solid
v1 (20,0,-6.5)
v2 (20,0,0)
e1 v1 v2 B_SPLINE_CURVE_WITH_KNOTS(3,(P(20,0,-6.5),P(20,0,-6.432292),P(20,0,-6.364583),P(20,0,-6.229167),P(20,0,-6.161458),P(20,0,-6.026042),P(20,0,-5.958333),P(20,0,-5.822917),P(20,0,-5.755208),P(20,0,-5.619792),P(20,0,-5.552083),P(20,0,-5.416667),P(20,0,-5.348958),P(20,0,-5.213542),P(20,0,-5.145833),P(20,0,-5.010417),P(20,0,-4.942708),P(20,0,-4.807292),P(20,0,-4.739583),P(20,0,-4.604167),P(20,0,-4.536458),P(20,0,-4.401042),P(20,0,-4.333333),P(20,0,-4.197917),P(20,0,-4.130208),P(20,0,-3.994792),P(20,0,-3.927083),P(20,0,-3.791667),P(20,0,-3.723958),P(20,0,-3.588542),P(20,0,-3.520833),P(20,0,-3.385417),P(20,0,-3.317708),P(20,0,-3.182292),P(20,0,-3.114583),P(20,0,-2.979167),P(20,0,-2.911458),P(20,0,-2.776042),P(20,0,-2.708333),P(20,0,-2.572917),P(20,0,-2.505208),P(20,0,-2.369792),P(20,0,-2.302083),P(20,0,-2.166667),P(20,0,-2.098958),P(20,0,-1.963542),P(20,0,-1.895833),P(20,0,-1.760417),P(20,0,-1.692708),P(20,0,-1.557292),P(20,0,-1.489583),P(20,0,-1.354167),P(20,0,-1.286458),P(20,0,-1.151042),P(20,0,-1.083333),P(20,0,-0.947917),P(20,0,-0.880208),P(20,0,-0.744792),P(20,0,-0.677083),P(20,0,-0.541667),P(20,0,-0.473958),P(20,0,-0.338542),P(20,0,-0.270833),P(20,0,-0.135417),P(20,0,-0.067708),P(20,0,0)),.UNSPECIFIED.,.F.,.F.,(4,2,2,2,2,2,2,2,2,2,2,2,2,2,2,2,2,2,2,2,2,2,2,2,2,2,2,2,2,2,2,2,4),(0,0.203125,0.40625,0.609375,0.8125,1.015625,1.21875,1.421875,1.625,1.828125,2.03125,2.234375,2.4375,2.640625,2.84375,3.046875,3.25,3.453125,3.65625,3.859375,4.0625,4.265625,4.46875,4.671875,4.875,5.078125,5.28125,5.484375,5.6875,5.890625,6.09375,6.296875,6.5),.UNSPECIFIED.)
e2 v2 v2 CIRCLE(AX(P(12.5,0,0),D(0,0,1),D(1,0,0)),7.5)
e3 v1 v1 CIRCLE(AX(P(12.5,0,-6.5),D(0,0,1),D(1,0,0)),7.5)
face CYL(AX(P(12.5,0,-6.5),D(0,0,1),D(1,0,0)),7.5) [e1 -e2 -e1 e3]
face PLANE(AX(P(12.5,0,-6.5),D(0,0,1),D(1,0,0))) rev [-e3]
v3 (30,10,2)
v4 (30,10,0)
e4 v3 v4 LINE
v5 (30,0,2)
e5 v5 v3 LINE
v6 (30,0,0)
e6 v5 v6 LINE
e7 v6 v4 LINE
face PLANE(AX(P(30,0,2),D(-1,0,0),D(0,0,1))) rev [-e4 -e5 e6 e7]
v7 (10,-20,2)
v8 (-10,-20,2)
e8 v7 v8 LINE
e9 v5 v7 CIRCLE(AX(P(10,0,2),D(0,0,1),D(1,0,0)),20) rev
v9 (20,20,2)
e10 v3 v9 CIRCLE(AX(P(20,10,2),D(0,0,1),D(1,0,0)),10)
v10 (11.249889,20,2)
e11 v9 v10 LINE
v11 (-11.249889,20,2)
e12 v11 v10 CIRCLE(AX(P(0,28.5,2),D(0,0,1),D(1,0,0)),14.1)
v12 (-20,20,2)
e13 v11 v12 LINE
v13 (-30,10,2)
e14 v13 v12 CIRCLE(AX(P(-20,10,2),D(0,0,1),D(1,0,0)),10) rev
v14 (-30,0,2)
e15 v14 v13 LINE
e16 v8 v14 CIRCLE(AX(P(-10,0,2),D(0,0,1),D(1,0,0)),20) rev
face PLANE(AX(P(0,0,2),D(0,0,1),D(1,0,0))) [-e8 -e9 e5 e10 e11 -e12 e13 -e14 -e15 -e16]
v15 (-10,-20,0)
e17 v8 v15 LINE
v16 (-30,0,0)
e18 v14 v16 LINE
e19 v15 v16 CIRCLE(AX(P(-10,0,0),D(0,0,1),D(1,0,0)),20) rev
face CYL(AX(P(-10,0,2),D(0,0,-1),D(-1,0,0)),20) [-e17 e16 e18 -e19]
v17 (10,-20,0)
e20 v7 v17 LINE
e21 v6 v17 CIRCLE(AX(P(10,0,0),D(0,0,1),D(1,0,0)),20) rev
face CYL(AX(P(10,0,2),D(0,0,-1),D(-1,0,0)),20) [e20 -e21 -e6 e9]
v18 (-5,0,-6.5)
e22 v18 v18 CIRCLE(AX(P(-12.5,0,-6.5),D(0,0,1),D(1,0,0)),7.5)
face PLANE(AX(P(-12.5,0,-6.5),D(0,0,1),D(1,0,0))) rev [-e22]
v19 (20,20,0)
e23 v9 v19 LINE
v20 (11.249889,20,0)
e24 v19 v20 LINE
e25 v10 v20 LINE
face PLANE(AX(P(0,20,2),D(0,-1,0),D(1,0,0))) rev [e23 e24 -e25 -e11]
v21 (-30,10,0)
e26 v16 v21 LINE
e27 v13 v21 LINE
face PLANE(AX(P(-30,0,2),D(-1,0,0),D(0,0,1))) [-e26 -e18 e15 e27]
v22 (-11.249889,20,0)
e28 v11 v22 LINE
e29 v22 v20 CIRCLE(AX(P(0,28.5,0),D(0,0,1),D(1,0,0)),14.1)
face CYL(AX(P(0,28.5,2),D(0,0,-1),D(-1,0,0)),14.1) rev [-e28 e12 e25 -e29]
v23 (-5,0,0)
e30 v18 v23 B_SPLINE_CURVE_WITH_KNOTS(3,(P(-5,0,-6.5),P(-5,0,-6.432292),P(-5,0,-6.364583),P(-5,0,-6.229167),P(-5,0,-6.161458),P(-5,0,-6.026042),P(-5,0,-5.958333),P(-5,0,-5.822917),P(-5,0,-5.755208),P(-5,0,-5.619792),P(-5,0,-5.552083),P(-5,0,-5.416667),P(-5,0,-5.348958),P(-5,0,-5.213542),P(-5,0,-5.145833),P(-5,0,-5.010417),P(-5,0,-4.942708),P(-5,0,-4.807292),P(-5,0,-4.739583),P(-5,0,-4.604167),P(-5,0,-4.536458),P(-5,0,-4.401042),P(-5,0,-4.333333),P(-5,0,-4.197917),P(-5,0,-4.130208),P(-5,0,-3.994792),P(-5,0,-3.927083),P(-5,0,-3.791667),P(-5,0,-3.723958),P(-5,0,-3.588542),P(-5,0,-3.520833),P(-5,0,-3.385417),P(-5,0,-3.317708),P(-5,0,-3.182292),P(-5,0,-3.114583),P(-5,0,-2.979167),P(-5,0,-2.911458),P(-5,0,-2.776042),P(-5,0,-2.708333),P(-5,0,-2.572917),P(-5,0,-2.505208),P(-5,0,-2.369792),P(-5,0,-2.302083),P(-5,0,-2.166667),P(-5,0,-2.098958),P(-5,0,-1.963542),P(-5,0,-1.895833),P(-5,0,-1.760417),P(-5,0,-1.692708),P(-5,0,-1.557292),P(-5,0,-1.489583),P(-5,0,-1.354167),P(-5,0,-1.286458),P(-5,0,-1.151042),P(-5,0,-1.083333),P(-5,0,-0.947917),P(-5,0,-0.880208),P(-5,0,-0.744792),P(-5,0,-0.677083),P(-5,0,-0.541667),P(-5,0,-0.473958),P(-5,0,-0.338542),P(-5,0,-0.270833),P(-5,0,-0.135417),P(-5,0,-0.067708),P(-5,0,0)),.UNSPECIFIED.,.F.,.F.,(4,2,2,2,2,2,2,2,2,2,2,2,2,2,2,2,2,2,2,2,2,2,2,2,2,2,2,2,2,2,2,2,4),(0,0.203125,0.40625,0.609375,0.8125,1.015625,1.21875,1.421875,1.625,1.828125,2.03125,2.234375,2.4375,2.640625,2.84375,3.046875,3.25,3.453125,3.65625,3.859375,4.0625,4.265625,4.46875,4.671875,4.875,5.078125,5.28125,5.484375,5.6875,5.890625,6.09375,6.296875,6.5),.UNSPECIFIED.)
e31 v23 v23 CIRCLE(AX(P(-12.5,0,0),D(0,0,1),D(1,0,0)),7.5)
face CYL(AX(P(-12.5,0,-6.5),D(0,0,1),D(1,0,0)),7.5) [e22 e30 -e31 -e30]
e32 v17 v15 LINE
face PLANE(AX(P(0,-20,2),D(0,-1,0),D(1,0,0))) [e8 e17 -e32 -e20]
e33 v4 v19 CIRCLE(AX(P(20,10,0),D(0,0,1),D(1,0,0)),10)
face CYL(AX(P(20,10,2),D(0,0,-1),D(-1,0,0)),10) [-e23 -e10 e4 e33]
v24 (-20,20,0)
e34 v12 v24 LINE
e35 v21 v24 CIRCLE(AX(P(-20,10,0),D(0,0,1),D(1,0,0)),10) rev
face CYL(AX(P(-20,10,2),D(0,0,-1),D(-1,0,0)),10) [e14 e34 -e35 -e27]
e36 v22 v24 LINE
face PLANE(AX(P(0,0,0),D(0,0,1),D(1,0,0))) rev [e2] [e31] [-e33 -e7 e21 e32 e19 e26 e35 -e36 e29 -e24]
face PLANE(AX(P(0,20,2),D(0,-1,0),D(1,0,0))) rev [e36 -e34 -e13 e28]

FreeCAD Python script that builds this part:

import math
import FreeCAD as App
import Part
import Sketcher
from FreeCAD import Vector
Q = App.Units.Quantity

doc = App.newDocument("Part")
body = doc.addObject("PartDesign::Body", "Body")

# Sketch on XY plane
sketch1 = body.newObject("Sketcher::SketchObject", "Sketch")
sketch1.AttachmentSupport = (doc.getObject("XY_Plane"), [""])
sketch1.MapMode = "FlatFace"
sketch1.addGeometry([
    Part.LineSegment(Vector(-10, -20, 0), Vector(10, -20, 0)),  # 0
    Part.ArcOfCircle(Part.Circle(Vector(10, 0, 0), Vector(0, 0, 1), 20), math.radians(-90), math.radians(0)),  # 1
    Part.LineSegment(Vector(30, 0, 0), Vector(30, 10, 0)),  # 2
    Part.ArcOfCircle(Part.Circle(Vector(20, 10, 0), Vector(0, 0, 1), 10), math.radians(0), math.radians(90)),  # 3
    Part.LineSegment(Vector(20, 20, 0), Vector(11, 20, 0)),  # 4
    Part.ArcOfCircle(Part.Circle(Vector(0, 28, 0), Vector(0, 0, 1), 14), math.radians(-143), math.radians(-37)),  # 5
    Part.LineSegment(Vector(-11, 20, 0), Vector(-20, 20, 0)),  # 6
    Part.ArcOfCircle(Part.Circle(Vector(-20, 10, 0), Vector(0, 0, 1), 10), math.radians(90), math.radians(180)),  # 7
    Part.LineSegment(Vector(-30, 10, 0), Vector(-30, 0, 0)),  # 8
    Part.ArcOfCircle(Part.Circle(Vector(-10, 0, 0), Vector(0, 0, 1), 20), math.radians(180), math.radians(270)),  # 9
], False)
sketch1.addConstraint([
    Sketcher.Constraint("Tangent", 0, 2, 1, 1),
    Sketcher.Constraint("Tangent", 1, 2, 2, 1),
    Sketcher.Constraint("Tangent", 2, 2, 3, 1),
    Sketcher.Constraint("Tangent", 3, 2, 4, 1),
    Sketcher.Constraint("Coincident", 4, 2, 5, 2),
    Sketcher.Constraint("Coincident", 5, 1, 6, 1),
    Sketcher.Constraint("Tangent", 6, 2, 7, 1),
    Sketcher.Constraint("Tangent", 7, 2, 8, 1),
    Sketcher.Constraint("Tangent", 8, 2, 9, 1),
    Sketcher.Constraint("Tangent", 9, 2, 0, 1),
    Sketcher.Constraint("Horizontal", 0),
    Sketcher.Constraint("Vertical", 2),
    Sketcher.Constraint("Horizontal", 4),
    Sketcher.Constraint("Horizontal", 6),
    Sketcher.Constraint("Vertical", 8),
    Sketcher.Constraint("Equal", 3, 7),
    Sketcher.Constraint("Equal", 1, 9),
    Sketcher.Constraint("Symmetric", 1, 3, 9, 3, -1, 1),
    Sketcher.Constraint("Symmetric", 4, 2, 5, 1, -2),
    Sketcher.Constraint("Radius", 1, Q("20 mm")),
    Sketcher.Constraint("Radius", 3, Q("10 mm")),
    Sketcher.Constraint("Radius", 5, Q("14.1 mm")),
    Sketcher.Constraint("DistanceX", 0, 1, 0, 2, Q("20 mm")),
    Sketcher.Constraint("DistanceY", 2, 1, 2, 2, Q("10 mm")),
    Sketcher.Constraint("DistanceY", -1, 1, 5, 3, Q("28.5 mm")),
])
pad1 = body.newObject("PartDesign::Pad", "Pad")
pad1.Profile = sketch1
pad1.Length = 2

# Sketch on XY plane
sketch2 = body.newObject("Sketcher::SketchObject", "Sketch001")
sketch2.AttachmentSupport = (doc.getObject("XY_Plane"), [""])
sketch2.MapMode = "FlatFace"
sketch2.addGeometry([
    Part.Circle(Vector(-12, 0, 0), Vector(0, 0, 1), 8),
    Part.Circle(Vector(12, 0, 0), Vector(0, 0, 1), 8),
], False)
sketch2.addConstraint([
    Sketcher.Constraint("Equal", 0, 1),
    Sketcher.Constraint("Symmetric", 0, 3, 1, 3, -1, 1),
    Sketcher.Constraint("PointOnObject", 0, 3, -1),
    Sketcher.Constraint("Diameter", 0, Q("15 mm")),
    Sketcher.Constraint("DistanceX", 0, 3, 1, 3, Q("25 mm")),
])
pad2 = body.newObject("PartDesign::Pad", "Pad001")
pad2.Profile = sketch2
pad2.Length = 6.5
pad2.Reversed = True

doc.recompute()
